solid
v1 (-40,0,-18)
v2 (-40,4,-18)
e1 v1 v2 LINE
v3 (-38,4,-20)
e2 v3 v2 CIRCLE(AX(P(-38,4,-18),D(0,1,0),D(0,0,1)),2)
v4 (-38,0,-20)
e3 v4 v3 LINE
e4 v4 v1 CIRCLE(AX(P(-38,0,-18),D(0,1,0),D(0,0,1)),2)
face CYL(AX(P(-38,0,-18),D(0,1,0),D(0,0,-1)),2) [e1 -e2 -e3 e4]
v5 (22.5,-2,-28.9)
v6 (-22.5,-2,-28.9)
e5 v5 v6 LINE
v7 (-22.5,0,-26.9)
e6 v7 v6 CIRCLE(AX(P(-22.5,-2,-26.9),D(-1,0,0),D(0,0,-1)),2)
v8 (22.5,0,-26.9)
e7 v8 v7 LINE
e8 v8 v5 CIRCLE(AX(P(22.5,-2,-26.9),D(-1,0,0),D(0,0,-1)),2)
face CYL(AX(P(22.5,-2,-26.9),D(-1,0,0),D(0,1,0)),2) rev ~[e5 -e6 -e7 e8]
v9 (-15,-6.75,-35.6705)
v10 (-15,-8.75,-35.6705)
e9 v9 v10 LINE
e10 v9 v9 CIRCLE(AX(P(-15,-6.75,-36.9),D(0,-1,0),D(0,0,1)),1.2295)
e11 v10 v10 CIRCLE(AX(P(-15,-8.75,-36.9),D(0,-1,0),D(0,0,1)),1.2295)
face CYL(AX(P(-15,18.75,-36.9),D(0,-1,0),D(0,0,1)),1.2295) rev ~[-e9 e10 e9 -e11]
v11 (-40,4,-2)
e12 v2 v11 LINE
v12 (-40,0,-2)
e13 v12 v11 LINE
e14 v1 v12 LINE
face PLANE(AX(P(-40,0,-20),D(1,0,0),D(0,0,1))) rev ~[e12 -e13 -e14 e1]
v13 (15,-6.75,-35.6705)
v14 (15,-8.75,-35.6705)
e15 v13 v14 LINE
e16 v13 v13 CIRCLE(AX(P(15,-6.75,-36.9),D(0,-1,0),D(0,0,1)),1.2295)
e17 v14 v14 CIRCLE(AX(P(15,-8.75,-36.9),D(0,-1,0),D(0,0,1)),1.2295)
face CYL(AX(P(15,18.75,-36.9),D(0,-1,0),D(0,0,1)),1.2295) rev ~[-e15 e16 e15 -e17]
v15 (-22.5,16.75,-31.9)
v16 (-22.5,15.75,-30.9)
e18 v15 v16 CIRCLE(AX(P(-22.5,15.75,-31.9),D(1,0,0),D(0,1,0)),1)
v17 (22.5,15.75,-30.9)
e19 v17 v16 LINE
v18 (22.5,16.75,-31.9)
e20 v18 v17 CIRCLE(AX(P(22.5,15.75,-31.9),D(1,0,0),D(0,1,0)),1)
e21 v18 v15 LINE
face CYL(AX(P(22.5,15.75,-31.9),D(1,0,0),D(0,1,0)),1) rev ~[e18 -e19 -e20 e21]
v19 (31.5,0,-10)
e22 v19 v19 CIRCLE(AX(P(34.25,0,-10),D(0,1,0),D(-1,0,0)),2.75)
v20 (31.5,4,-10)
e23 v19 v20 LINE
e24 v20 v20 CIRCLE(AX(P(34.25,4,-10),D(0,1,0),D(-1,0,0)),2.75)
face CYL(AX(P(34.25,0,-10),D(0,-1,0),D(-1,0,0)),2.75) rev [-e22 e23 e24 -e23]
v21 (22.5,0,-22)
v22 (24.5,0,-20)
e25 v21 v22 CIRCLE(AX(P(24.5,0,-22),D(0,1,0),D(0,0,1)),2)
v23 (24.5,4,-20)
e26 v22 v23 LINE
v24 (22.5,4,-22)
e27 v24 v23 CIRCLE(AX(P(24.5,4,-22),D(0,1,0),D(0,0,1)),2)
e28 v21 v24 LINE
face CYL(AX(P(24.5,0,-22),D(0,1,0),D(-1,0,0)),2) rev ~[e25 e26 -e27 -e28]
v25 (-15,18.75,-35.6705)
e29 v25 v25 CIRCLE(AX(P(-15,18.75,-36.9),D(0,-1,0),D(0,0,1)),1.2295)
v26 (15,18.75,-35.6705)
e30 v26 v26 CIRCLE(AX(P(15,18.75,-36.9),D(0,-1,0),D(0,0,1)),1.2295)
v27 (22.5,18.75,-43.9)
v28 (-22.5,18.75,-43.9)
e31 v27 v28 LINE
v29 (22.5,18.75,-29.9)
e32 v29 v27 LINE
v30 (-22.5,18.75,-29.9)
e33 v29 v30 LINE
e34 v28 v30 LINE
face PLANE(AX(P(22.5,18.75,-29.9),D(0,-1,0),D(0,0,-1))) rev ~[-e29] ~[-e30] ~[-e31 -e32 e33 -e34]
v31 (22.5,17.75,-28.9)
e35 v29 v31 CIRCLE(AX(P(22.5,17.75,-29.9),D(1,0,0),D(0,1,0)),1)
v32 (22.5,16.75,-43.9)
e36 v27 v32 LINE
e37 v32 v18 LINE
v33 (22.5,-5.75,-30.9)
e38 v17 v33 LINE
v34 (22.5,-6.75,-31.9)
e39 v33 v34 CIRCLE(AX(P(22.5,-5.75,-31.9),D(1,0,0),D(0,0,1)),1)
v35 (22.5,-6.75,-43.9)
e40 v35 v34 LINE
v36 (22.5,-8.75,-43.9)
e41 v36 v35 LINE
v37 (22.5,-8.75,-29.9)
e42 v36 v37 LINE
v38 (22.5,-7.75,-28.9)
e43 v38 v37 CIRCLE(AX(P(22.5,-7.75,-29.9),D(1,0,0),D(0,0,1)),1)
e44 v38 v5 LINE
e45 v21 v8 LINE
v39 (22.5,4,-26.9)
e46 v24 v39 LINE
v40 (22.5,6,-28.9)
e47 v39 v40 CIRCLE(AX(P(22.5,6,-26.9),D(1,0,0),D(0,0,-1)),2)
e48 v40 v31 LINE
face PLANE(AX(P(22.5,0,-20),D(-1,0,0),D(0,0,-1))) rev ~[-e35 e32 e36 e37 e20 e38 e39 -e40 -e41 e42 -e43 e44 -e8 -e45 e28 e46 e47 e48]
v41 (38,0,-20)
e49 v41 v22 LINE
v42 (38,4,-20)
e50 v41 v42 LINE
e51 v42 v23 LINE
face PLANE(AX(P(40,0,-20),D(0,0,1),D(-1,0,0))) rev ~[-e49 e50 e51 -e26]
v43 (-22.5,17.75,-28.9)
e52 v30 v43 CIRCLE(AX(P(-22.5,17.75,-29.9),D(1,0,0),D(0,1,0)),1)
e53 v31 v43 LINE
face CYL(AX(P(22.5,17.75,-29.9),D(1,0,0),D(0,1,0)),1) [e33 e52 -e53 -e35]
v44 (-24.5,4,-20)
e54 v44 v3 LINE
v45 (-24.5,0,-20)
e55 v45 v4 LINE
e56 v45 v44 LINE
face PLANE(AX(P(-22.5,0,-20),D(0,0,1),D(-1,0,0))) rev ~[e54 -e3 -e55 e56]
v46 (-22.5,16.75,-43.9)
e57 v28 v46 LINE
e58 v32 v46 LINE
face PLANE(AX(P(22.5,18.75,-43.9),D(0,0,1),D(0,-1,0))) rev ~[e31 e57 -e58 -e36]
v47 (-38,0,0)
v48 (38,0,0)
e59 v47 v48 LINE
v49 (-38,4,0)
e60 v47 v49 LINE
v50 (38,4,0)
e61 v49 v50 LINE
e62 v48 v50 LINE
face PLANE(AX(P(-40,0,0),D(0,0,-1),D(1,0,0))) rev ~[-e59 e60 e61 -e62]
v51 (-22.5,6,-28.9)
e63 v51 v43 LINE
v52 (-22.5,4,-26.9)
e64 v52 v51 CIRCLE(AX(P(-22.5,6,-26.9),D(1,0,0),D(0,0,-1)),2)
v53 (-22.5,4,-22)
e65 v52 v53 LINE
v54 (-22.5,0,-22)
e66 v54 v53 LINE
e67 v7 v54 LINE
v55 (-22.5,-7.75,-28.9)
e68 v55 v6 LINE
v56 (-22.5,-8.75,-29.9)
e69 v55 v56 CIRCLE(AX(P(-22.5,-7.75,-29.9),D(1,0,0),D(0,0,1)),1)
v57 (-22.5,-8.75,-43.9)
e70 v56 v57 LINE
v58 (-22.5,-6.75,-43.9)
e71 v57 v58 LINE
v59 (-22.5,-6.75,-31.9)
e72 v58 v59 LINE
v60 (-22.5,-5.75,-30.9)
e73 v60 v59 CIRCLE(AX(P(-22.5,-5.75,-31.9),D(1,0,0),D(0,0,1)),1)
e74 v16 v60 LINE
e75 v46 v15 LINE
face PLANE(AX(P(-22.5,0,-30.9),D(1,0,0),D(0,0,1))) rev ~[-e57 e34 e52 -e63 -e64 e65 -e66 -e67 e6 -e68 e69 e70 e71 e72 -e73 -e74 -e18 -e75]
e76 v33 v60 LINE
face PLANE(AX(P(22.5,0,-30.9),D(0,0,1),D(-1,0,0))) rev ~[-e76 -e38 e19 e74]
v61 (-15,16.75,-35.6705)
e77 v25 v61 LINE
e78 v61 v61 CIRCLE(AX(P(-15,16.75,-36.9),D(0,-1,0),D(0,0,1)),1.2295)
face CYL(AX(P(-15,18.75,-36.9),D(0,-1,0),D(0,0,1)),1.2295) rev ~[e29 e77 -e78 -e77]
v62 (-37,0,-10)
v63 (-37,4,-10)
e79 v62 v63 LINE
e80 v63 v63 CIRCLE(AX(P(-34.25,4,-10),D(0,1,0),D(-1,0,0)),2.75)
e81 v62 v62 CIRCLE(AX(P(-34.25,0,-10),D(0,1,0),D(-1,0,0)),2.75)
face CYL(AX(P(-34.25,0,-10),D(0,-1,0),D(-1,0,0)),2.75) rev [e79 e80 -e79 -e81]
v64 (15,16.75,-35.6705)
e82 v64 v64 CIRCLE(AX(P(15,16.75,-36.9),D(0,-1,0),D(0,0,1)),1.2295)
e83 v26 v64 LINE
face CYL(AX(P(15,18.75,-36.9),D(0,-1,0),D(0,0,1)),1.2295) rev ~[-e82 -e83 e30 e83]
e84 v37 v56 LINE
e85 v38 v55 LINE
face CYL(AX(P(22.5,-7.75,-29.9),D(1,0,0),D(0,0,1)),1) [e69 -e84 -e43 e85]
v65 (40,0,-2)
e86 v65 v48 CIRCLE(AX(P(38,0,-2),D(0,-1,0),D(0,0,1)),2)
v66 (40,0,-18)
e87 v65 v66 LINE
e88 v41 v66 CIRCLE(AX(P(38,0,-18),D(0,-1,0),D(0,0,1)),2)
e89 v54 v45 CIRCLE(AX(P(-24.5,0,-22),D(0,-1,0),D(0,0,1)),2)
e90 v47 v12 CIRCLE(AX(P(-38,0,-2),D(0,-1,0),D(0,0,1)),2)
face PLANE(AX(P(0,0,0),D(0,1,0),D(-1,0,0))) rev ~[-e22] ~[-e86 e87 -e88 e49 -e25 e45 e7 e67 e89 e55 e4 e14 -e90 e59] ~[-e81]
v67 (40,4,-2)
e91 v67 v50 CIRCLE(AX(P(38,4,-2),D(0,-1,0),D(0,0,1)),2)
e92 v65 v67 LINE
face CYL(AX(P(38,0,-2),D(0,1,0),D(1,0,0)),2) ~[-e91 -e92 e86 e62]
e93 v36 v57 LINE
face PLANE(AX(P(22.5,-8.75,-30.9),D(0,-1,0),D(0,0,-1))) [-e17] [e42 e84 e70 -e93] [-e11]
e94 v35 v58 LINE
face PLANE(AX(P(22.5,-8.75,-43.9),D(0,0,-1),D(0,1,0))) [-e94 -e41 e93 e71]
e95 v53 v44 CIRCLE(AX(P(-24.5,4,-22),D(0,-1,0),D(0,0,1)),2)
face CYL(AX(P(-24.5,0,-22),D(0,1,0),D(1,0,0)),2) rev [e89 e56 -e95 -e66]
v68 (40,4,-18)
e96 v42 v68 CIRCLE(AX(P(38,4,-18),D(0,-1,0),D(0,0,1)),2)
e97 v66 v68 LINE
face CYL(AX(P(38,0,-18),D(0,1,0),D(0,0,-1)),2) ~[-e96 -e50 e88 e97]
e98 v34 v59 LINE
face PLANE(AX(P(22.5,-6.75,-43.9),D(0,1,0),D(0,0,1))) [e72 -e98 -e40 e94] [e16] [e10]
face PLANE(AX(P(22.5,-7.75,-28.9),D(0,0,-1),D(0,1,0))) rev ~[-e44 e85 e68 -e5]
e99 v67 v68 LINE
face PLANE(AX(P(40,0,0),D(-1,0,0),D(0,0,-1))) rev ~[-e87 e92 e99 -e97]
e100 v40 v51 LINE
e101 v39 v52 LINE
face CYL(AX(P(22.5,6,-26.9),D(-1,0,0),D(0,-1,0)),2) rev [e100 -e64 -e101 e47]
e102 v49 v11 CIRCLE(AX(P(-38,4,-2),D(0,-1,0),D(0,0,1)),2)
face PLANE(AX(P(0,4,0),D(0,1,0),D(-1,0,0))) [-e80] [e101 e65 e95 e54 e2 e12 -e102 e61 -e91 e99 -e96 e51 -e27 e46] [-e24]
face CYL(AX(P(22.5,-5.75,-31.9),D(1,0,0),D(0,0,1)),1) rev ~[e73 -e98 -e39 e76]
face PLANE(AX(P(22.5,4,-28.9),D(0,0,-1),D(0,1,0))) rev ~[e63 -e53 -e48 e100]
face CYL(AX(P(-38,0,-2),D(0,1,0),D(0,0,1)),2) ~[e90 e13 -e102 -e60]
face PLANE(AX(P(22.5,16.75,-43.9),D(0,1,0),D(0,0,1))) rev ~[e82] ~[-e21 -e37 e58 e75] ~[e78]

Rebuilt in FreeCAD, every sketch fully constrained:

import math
import FreeCAD as App
import Part
import Sketcher


def edges_at(feature, points):
    """Names of the edges that pass closest to the given points."""
    edges = feature.Shape.Edges
    near = lambda p: min(range(len(edges)), key=lambda i: edges[i].distToShape(Part.Vertex(*p))[0])
    return sorted({f"Edge{near(p) + 1}" for p in points})

doc = App.newDocument("Part")
body = doc.addObject("PartDesign::Body", "Body")

sketch1 = body.newObject("Sketcher::SketchObject", "Sketch")
sketch1.AttachmentSupport = (doc.getObject("XZ_Plane"), [""])
sketch1.MapMode = "FlatFace"
sketch1.addGeometry(Part.LineSegment(App.Vector(-22.5, -30.9, 0), App.Vector(-22.5, -20, 0)), False)
sketch1.addGeometry(Part.LineSegment(App.Vector(-22.5, -20, 0), App.Vector(-40, -20, 0)), False)
sketch1.addGeometry(Part.LineSegment(App.Vector(-40, -20, 0), App.Vector(-40, 0, 0)), False)
sketch1.addGeometry(Part.LineSegment(App.Vector(-40, 0, 0), App.Vector(40, 0, 0)), False)
sketch1.addGeometry(Part.LineSegment(App.Vector(40, 0, 0), App.Vector(40, -20, 0)), False)
sketch1.addGeometry(Part.LineSegment(App.Vector(40, -20, 0), App.Vector(22.5, -20, 0)), False)
sketch1.addGeometry(Part.LineSegment(App.Vector(22.5, -20, 0), App.Vector(22.5, -30.9, 0)), False)
sketch1.addGeometry(Part.LineSegment(App.Vector(22.5, -30.9, 0), App.Vector(-22.5, -30.9, 0)), False)
sketch1.addGeometry(Part.Circle(App.Vector(-34.25, -10, 0), App.Vector(0, 0, 1), 2.75), False)
sketch1.addGeometry(Part.Circle(App.Vector(34.25, -10, 0), App.Vector(0, 0, 1), 2.75), False)
sketch1.addConstraint(Sketcher.Constraint("Coincident", 0, 2, 1, 1))
sketch1.addConstraint(Sketcher.Constraint("Coincident", 1, 2, 2, 1))
sketch1.addConstraint(Sketcher.Constraint("Coincident", 2, 2, 3, 1))
sketch1.addConstraint(Sketcher.Constraint("Coincident", 3, 2, 4, 1))
sketch1.addConstraint(Sketcher.Constraint("Coincident", 4, 2, 5, 1))
sketch1.addConstraint(Sketcher.Constraint("Coincident", 5, 2, 6, 1))
sketch1.addConstraint(Sketcher.Constraint("Coincident", 6, 2, 7, 1))
sketch1.addConstraint(Sketcher.Constraint("Coincident", 7, 2, 0, 1))
sketch1.addConstraint(Sketcher.Constraint("Vertical", 0))
sketch1.addConstraint(Sketcher.Constraint("Horizontal", 1))
sketch1.addConstraint(Sketcher.Constraint("Vertical", 2))
sketch1.addConstraint(Sketcher.Constraint("Horizontal", 3))
sketch1.addConstraint(Sketcher.Constraint("Vertical", 4))
sketch1.addConstraint(Sketcher.Constraint("Horizontal", 5))
sketch1.addConstraint(Sketcher.Constraint("Vertical", 6))
sketch1.addConstraint(Sketcher.Constraint("Horizontal", 7))
sketch1.addConstraint(Sketcher.Constraint("Equal", 8, 9))
sketch1.addConstraint(Sketcher.Constraint("Symmetric", 2, 2, 3, 2, -1, 1))
sketch1.addConstraint(Sketcher.Constraint("Symmetric", 8, 3, 9, 3, -2))
sketch1.addConstraint(Sketcher.Constraint("Symmetric", 0, 2, 5, 2, -2))
sketch1.addConstraint(Sketcher.Constraint("Diameter", 8, 5.5))
sketch1.addConstraint(Sketcher.Constraint("DistanceX", 7, 2, 7, 1, 45.0))
sketch1.addConstraint(Sketcher.Constraint("DistanceY", 2, 1, 2, 2, 20.0))
sketch1.addConstraint(Sketcher.Constraint("DistanceY", 0, 1, 0, 2, 10.9))
sketch1.addConstraint(Sketcher.Constraint("DistanceY", 8, 3, -1, 1, 10.0))
sketch1.addConstraint(Sketcher.Constraint("DistanceX", 1, 2, -1, 1, 40.0))
sketch1.addConstraint(Sketcher.Constraint("DistanceX", 8, 3, 9, 3, 68.5))
pad1 = body.newObject("PartDesign::Pad", "Pad")
pad1.Profile = sketch1
pad1.Length = 4
pad1.Reversed = True

sketch2 = body.newObject("Sketcher::SketchObject", "Sketch001")
sketch2.AttachmentSupport = (doc.getObject("YZ_Plane"), [""])
sketch2.MapMode = "FlatFace"
sketch2.AttachmentOffset = App.Placement(App.Vector(0, 0, 22.5), App.Rotation())
sketch2.addGeometry(Part.LineSegment(App.Vector(4, -28.9, 0), App.Vector(4, -30.9, 0)), False)
sketch2.addGeometry(Part.LineSegment(App.Vector(4, -30.9, 0), App.Vector(15.75, -30.9, 0)), False)
sketch2.addGeometry(Part.ArcOfCircle(Part.Circle(App.Vector(15.75, -31.9, 0), App.Vector(0, 0, 1), 1), math.radians(0), math.radians(90)), False)
sketch2.addGeometry(Part.LineSegment(App.Vector(16.75, -31.9, 0), App.Vector(16.75, -43.9, 0)), False)
sketch2.addGeometry(Part.LineSegment(App.Vector(16.75, -43.9, 0), App.Vector(18.75, -43.9, 0)), False)
sketch2.addGeometry(Part.LineSegment(App.Vector(18.75, -43.9, 0), App.Vector(18.75, -29.9, 0)), False)
sketch2.addGeometry(Part.ArcOfCircle(Part.Circle(App.Vector(17.75, -29.9, 0), App.Vector(0, 0, 1), 1), math.radians(0), math.radians(90)), False)
sketch2.addGeometry(Part.LineSegment(App.Vector(17.75, -28.9, 0), App.Vector(4, -28.9, 0)), False)
sketch2.addGeometry(Part.LineSegment(App.Vector(0, -30.9, 0), App.Vector(0, -28.9, 0)), False)
sketch2.addGeometry(Part.LineSegment(App.Vector(0, -28.9, 0), App.Vector(-7.75, -28.9, 0)), False)
sketch2.addGeometry(Part.ArcOfCircle(Part.Circle(App.Vector(-7.75, -29.9, 0), App.Vector(0, 0, 1), 1), math.radians(90), math.radians(180)), False)
sketch2.addGeometry(Part.LineSegment(App.Vector(-8.75, -29.9, 0), App.Vector(-8.75, -43.9, 0)), False)
sketch2.addGeometry(Part.LineSegment(App.Vector(-8.75, -43.9, 0), App.Vector(-6.75, -43.9, 0)), False)
sketch2.addGeometry(Part.LineSegment(App.Vector(-6.75, -43.9, 0), App.Vector(-6.75, -31.9, 0)), False)
sketch2.addGeometry(Part.ArcOfCircle(Part.Circle(App.Vector(-5.75, -31.9, 0), App.Vector(0, 0, 1), 1), math.radians(90), math.radians(180)), False)
sketch2.addGeometry(Part.LineSegment(App.Vector(-5.75, -30.9, 0), App.Vector(0, -30.9, 0)), False)
sketch2.addConstraint(Sketcher.Constraint("Coincident", 0, 2, 1, 1))
sketch2.addConstraint(Sketcher.Constraint("Tangent", 1, 2, 2, 2))
sketch2.addConstraint(Sketcher.Constraint("Tangent", 2, 1, 3, 1))
sketch2.addConstraint(Sketcher.Constraint("Coincident", 3, 2, 4, 1))
sketch2.addConstraint(Sketcher.Constraint("Coincident", 4, 2, 5, 1))
sketch2.addConstraint(Sketcher.Constraint("Tangent", 5, 2, 6, 1))
sketch2.addConstraint(Sketcher.Constraint("Tangent", 6, 2, 7, 1))
sketch2.addConstraint(Sketcher.Constraint("Coincident", 7, 2, 0, 1))
sketch2.addConstraint(Sketcher.Constraint("Coincident", 8, 2, 9, 1))
sketch2.addConstraint(Sketcher.Constraint("Tangent", 9, 2, 10, 1))
sketch2.addConstraint(Sketcher.Constraint("Tangent", 10, 2, 11, 1))
sketch2.addConstraint(Sketcher.Constraint("Coincident", 11, 2, 12, 1))
sketch2.addConstraint(Sketcher.Constraint("Coincident", 12, 2, 13, 1))
sketch2.addConstraint(Sketcher.Constraint("Tangent", 13, 2, 14, 2))
sketch2.addConstraint(Sketcher.Constraint("Tangent", 14, 1, 15, 1))
sketch2.addConstraint(Sketcher.Constraint("Coincident", 15, 2, 8, 1))
sketch2.addConstraint(Sketcher.Constraint("Vertical", 0))
sketch2.addConstraint(Sketcher.Constraint("Horizontal", 1))
sketch2.addConstraint(Sketcher.Constraint("Vertical", 3))
sketch2.addConstraint(Sketcher.Constraint("Horizontal", 4))
sketch2.addConstraint(Sketcher.Constraint("Vertical", 5))
sketch2.addConstraint(Sketcher.Constraint("Horizontal", 7))
sketch2.addConstraint(Sketcher.Constraint("Vertical", 8))
sketch2.addConstraint(Sketcher.Constraint("Horizontal", 9))
sketch2.addConstraint(Sketcher.Constraint("Vertical", 11))
sketch2.addConstraint(Sketcher.Constraint("Horizontal", 12))
sketch2.addConstraint(Sketcher.Constraint("Vertical", 13))
sketch2.addConstraint(Sketcher.Constraint("Horizontal", 15))
sketch2.addConstraint(Sketcher.Constraint("Equal", 2, 6))
sketch2.addConstraint(Sketcher.Constraint("Equal", 6, 10))
sketch2.addConstraint(Sketcher.Constraint("Equal", 10, 14))
sketch2.addConstraint(Sketcher.Constraint("PointOnObject", 8, 2, -2))
sketch2.addConstraint(Sketcher.Constraint("Horizontal", 6, 3, 10, 3))
sketch2.addConstraint(Sketcher.Constraint("Horizontal", 2, 3, 14, 3))
sketch2.addConstraint(Sketcher.Constraint("Horizontal", 4, 2, 11, 2))
sketch2.addConstraint(Sketcher.Constraint("Equal", 4, 12))
sketch2.addConstraint(Sketcher.Constraint("Equal", 12, 0))
sketch2.addConstraint(Sketcher.Constraint("Radius", 2, 1.0))
sketch2.addConstraint(Sketcher.Constraint("DistanceX", 4, 1, 4, 2, 2.0))
sketch2.addConstraint(Sketcher.Constraint("DistanceY", 3, 2, 1, 2, 13.0))
sketch2.addConstraint(Sketcher.Constraint("DistanceX", 12, 2, -1, 1, 6.75))
sketch2.addConstraint(Sketcher.Constraint("DistanceX", 0, 2, 2, 1, 12.75))
sketch2.addConstraint(Sketcher.Constraint("DistanceX", 10, 2, 0, 2, 12.75))
sketch2.addConstraint(Sketcher.Constraint("DistanceY", 2, 3, -1, 1, 31.9))
pad2 = body.newObject("PartDesign::Pad", "Pad001")
pad2.Profile = sketch2
pad2.Length = 45
pad2.Reversed = True
doc.recompute()

fillet = body.newObject("PartDesign::Fillet", "Fillet")
fillet.Base = (pad2, edges_at(pad2, [(0, 0, -28.9), (0, 4, -28.9)]))
fillet.Radius = 2

sketch3 = body.newObject("Sketcher::SketchObject", "Sketch002")
sketch3.AttachmentSupport = (doc.getObject("XZ_Plane"), [""])
sketch3.MapMode = "FlatFace"
sketch3.AttachmentOffset = App.Placement(App.Vector(0, 0, -18.75), App.Rotation())
sketch3.addGeometry(Part.Circle(App.Vector(15, -36.9, 0), App.Vector(0, 0, 1), 1.2295), False)
sketch3.addGeometry(Part.Circle(App.Vector(-15, -36.9, 0), App.Vector(0, 0, 1), 1.2295), False)
sketch3.addConstraint(Sketcher.Constraint("Equal", 0, 1))
sketch3.addConstraint(Sketcher.Constraint("Symmetric", 0, 3, 1, 3, -2))
sketch3.addConstraint(Sketcher.Constraint("Diameter", 0, 2.459))
sketch3.addConstraint(Sketcher.Constraint("DistanceX", -1, 1, 0, 3, 15.0))
sketch3.addConstraint(Sketcher.Constraint("DistanceY", 0, 3, -1, 1, 36.9))
doc.recompute()
hole = body.newObject("PartDesign::Hole", "Hole")
hole.Profile = sketch3
hole.ThreadType = "None"
hole.Diameter = 2.459
hole.DepthType = "Dimension"
hole.Depth = 27.5
hole.DrillPoint = "Flat"
hole.Reversed = True
doc.recompute()

fillet2 = body.newObject("PartDesign::Fillet", "Fillet001")
fillet2.Base = (hole, edges_at(hole, [
    (22.5, 2, -20),
    (40, 2, -20),
    (40, 2, 0),
    (-40, 2, 0),
    (-40, 2, -20),
    (-22.5, 2, -20),
]))
fillet2.Radius = 2

doc.recompute()
